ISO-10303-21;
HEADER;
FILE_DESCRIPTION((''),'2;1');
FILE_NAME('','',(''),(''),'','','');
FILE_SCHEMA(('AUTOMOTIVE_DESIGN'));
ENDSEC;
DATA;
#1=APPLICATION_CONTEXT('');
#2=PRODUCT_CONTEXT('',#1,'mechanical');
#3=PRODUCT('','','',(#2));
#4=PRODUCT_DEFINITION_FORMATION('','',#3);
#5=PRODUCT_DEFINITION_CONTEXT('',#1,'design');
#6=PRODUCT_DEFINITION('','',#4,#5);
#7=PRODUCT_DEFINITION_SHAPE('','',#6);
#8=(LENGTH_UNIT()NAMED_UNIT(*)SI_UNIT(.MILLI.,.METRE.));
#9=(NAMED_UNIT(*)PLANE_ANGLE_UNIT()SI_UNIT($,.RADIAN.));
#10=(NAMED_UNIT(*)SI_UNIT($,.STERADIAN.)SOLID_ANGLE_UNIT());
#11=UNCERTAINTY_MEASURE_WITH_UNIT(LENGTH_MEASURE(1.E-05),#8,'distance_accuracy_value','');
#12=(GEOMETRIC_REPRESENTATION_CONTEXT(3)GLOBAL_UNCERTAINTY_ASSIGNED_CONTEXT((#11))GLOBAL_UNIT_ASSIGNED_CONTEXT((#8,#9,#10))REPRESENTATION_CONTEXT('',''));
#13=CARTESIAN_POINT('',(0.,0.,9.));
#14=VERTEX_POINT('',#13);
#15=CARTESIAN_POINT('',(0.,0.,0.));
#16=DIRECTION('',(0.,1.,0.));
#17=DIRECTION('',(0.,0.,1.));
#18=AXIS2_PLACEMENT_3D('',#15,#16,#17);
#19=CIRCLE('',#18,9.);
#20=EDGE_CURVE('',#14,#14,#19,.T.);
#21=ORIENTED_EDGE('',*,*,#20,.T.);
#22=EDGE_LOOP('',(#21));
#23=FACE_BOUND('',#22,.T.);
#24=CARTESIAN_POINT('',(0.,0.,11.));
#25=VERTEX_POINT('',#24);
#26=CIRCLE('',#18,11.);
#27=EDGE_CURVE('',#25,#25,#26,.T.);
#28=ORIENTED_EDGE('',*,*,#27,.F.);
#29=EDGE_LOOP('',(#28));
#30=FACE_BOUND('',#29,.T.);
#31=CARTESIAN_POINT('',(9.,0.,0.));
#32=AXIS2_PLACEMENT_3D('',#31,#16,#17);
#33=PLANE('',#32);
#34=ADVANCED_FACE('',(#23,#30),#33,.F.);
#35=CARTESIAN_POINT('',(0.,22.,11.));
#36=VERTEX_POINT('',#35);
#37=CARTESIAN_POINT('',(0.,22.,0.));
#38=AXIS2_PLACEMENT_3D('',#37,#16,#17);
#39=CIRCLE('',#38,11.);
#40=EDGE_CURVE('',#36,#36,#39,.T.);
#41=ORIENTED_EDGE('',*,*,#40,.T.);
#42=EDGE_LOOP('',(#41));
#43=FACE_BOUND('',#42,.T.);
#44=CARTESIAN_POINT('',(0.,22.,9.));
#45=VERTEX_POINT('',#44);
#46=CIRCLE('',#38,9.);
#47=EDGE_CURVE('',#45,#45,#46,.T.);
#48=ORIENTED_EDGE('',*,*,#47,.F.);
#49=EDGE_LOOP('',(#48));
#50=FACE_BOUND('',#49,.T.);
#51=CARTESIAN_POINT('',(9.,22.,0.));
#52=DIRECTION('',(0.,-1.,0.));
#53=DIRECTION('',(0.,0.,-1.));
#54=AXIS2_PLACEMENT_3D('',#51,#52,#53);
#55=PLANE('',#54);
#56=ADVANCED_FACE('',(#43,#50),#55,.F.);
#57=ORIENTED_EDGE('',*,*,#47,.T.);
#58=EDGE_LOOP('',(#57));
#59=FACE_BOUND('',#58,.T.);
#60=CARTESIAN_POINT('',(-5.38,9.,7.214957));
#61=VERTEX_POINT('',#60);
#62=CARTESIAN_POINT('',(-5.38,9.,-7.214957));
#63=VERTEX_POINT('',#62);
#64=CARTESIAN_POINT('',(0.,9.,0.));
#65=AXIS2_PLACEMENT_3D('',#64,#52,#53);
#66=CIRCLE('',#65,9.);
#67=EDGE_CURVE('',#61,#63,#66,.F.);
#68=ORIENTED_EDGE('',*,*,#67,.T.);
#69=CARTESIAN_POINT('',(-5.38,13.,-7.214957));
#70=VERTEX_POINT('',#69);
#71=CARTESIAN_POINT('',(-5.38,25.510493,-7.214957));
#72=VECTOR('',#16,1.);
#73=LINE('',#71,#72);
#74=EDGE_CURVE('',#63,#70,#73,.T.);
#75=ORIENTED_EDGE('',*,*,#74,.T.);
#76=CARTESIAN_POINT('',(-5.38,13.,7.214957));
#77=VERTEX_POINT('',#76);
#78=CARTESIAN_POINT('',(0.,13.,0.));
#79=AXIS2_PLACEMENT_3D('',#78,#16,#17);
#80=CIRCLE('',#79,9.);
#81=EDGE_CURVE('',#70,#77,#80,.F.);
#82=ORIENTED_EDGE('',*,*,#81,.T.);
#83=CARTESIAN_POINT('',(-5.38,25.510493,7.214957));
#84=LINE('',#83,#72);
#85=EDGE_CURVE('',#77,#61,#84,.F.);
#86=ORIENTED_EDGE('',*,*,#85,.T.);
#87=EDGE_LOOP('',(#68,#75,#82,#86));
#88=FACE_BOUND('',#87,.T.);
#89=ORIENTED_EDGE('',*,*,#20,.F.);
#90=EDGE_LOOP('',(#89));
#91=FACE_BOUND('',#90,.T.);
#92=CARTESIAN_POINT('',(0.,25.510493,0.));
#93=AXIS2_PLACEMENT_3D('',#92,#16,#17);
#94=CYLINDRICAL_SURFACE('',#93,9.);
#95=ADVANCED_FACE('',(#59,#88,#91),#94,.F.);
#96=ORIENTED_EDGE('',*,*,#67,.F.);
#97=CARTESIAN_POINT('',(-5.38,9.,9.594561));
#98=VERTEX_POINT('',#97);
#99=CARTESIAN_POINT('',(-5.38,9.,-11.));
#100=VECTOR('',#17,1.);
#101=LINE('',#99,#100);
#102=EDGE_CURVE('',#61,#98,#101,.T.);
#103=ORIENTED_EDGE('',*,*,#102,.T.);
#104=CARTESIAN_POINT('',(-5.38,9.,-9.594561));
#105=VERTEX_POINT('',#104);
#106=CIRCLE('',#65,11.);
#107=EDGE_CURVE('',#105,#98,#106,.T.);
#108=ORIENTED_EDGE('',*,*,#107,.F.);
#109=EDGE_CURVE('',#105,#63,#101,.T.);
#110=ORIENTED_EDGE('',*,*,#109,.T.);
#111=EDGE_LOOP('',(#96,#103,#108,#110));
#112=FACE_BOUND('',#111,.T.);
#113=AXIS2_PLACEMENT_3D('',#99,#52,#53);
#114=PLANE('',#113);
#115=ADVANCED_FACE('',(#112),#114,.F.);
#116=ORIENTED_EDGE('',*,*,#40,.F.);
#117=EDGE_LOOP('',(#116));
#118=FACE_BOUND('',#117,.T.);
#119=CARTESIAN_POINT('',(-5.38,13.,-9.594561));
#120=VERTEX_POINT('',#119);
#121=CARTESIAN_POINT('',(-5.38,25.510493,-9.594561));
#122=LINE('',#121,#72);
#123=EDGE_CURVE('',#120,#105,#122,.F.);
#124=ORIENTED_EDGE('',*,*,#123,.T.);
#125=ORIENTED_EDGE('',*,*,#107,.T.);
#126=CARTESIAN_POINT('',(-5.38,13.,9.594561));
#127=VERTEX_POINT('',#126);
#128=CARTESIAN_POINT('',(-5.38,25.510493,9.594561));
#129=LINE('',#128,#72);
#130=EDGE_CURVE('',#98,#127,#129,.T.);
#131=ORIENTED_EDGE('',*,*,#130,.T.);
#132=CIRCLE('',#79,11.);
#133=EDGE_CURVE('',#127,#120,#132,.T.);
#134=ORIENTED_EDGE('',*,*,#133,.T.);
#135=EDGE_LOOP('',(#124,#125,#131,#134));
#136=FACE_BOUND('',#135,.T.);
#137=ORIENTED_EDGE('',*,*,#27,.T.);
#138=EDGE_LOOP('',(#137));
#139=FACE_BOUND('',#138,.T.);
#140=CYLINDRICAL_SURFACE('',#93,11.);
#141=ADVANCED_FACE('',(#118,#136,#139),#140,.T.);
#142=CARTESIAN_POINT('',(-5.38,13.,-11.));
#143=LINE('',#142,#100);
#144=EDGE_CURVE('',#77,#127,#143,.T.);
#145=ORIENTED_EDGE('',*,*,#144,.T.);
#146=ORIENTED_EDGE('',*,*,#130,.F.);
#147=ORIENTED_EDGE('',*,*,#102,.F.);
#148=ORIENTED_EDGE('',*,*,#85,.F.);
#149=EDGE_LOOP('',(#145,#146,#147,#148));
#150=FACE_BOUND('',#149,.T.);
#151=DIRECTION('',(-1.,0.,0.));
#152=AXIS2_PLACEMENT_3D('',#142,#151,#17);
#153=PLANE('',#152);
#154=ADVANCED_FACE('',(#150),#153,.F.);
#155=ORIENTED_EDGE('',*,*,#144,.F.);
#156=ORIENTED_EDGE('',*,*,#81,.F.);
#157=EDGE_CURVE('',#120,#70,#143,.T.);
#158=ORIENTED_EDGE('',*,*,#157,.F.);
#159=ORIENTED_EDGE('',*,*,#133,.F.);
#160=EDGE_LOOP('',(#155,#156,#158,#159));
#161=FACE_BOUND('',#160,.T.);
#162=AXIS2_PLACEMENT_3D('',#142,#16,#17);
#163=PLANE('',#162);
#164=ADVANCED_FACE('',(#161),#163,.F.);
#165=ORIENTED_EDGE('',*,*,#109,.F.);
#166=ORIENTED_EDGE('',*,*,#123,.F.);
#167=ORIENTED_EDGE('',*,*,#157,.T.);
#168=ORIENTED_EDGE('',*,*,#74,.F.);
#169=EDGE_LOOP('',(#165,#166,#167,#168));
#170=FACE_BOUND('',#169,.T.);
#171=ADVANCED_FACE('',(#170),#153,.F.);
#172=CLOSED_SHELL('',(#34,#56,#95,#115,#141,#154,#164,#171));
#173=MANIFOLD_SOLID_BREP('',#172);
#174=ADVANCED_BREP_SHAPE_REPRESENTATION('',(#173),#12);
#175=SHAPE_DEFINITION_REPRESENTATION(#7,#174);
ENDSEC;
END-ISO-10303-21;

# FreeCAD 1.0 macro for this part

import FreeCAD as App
import Part
import Sketcher

doc = App.newDocument("Part")
params = doc.addObject("Spreadsheet::Sheet", "Params")
for row, (alias, value) in enumerate([
    ("sketch1_width", "2 mm"),
    ("sketch1_height", "22 mm"),
    ("revolution_angle", "360 deg"),
    ("sketch2_width", "17 mm"),
    ("sketch2_height", "4 mm"),
], start=1):
    params.set(f"A{row}", alias)
    params.set(f"B{row}", "=" + value)
    params.setAlias(f"B{row}", alias)

body = doc.addObject("PartDesign::Body", "Body")

# Sketch on XY plane
sketch1 = doc.addObject("Sketcher::SketchObject", "Sketch")
body.addObject(sketch1)
sketch1.AttachmentSupport = (doc.XY_Plane, [""])
sketch1.MapMode = "FlatFace"
sketch1.addGeometry(Part.LineSegment(App.Vector(9, 22, 0), App.Vector(9, 0, 0)), False)
sketch1.addGeometry(Part.LineSegment(App.Vector(9, 0, 0), App.Vector(11, 0, 0)), False)
sketch1.addGeometry(Part.LineSegment(App.Vector(11, 0, 0), App.Vector(11, 22, 0)), False)
sketch1.addGeometry(Part.LineSegment(App.Vector(11, 22, 0), App.Vector(9, 22, 0)), False)
sketch1.addConstraint(Sketcher.Constraint("Coincident", 0, 2, 1, 1))
sketch1.addConstraint(Sketcher.Constraint("Coincident", 1, 2, 2, 1))
sketch1.addConstraint(Sketcher.Constraint("Coincident", 2, 2, 3, 1))
sketch1.addConstraint(Sketcher.Constraint("Coincident", 3, 2, 0, 1))
sketch1.addConstraint(Sketcher.Constraint("Vertical", 0))
sketch1.addConstraint(Sketcher.Constraint("Horizontal", 1))
sketch1.addConstraint(Sketcher.Constraint("Vertical", 2))
sketch1.addConstraint(Sketcher.Constraint("Horizontal", 3))
sketch1.addConstraint(Sketcher.Constraint("PointOnObject", 0, 2, -1))
sketch1.addConstraint(Sketcher.Constraint("DistanceX", 1, 1, 1, 2, 2.0))
sketch1.addConstraint(Sketcher.Constraint("DistanceY", 0, 2, 0, 1, 22.0))
sketch1.addConstraint(Sketcher.Constraint("DistanceX", -1, 1, 0, 2, 9.0))
sketch1.setExpression("Constraints[9]", "Params.sketch1_width")
sketch1.setExpression("Constraints[10]", "Params.sketch1_height")
revolution = doc.addObject("PartDesign::Revolution", "Revolution")
body.addObject(revolution)
revolution.Profile = sketch1
revolution.ReferenceAxis = (sketch1, ["V_Axis"])
revolution.setExpression("Angle", "Params.revolution_angle")

# Sketch on XY plane
sketch2 = doc.addObject("Sketcher::SketchObject", "Sketch001")
body.addObject(sketch2)
sketch2.AttachmentSupport = (doc.XY_Plane, [""])
sketch2.MapMode = "FlatFace"
sketch2.addGeometry(Part.LineSegment(App.Vector(-5.4, 13, 0), App.Vector(-5.4, 9, 0)), False)
sketch2.addGeometry(Part.LineSegment(App.Vector(-5.4, 9, 0), App.Vector(11.6, 9, 0)), False)
sketch2.addGeometry(Part.LineSegment(App.Vector(11.6, 9, 0), App.Vector(11.6, 13, 0)), False)
sketch2.addGeometry(Part.LineSegment(App.Vector(11.6, 13, 0), App.Vector(-5.4, 13, 0)), False)
sketch2.addConstraint(Sketcher.Constraint("Coincident", 0, 2, 1, 1))
sketch2.addConstraint(Sketcher.Constraint("Coincident", 1, 2, 2, 1))
sketch2.addConstraint(Sketcher.Constraint("Coincident", 2, 2, 3, 1))
sketch2.addConstraint(Sketcher.Constraint("Coincident", 3, 2, 0, 1))
sketch2.addConstraint(Sketcher.Constraint("Vertical", 0))
sketch2.addConstraint(Sketcher.Constraint("Horizontal", 1))
sketch2.addConstraint(Sketcher.Constraint("Vertical", 2))
sketch2.addConstraint(Sketcher.Constraint("Horizontal", 3))
sketch2.addConstraint(Sketcher.Constraint("DistanceX", 1, 1, 1, 2, 17.0))
sketch2.addConstraint(Sketcher.Constraint("DistanceY", 0, 2, 0, 1, 4.0))
sketch2.addConstraint(Sketcher.Constraint("DistanceY", -1, 1, 0, 2, 9.0))
sketch2.addConstraint(Sketcher.Constraint("DistanceX", 0, 2, -1, 1, 5.38))
sketch2.setExpression("Constraints[8]", "Params.sketch2_width")
sketch2.setExpression("Constraints[9]", "Params.sketch2_height")
pocket1 = doc.addObject("PartDesign::Pocket", "Pocket")
body.addObject(pocket1)
pocket1.Profile = sketch2
pocket1.Type = "ThroughAll"
pocket1.Midplane = True

doc.recompute()
